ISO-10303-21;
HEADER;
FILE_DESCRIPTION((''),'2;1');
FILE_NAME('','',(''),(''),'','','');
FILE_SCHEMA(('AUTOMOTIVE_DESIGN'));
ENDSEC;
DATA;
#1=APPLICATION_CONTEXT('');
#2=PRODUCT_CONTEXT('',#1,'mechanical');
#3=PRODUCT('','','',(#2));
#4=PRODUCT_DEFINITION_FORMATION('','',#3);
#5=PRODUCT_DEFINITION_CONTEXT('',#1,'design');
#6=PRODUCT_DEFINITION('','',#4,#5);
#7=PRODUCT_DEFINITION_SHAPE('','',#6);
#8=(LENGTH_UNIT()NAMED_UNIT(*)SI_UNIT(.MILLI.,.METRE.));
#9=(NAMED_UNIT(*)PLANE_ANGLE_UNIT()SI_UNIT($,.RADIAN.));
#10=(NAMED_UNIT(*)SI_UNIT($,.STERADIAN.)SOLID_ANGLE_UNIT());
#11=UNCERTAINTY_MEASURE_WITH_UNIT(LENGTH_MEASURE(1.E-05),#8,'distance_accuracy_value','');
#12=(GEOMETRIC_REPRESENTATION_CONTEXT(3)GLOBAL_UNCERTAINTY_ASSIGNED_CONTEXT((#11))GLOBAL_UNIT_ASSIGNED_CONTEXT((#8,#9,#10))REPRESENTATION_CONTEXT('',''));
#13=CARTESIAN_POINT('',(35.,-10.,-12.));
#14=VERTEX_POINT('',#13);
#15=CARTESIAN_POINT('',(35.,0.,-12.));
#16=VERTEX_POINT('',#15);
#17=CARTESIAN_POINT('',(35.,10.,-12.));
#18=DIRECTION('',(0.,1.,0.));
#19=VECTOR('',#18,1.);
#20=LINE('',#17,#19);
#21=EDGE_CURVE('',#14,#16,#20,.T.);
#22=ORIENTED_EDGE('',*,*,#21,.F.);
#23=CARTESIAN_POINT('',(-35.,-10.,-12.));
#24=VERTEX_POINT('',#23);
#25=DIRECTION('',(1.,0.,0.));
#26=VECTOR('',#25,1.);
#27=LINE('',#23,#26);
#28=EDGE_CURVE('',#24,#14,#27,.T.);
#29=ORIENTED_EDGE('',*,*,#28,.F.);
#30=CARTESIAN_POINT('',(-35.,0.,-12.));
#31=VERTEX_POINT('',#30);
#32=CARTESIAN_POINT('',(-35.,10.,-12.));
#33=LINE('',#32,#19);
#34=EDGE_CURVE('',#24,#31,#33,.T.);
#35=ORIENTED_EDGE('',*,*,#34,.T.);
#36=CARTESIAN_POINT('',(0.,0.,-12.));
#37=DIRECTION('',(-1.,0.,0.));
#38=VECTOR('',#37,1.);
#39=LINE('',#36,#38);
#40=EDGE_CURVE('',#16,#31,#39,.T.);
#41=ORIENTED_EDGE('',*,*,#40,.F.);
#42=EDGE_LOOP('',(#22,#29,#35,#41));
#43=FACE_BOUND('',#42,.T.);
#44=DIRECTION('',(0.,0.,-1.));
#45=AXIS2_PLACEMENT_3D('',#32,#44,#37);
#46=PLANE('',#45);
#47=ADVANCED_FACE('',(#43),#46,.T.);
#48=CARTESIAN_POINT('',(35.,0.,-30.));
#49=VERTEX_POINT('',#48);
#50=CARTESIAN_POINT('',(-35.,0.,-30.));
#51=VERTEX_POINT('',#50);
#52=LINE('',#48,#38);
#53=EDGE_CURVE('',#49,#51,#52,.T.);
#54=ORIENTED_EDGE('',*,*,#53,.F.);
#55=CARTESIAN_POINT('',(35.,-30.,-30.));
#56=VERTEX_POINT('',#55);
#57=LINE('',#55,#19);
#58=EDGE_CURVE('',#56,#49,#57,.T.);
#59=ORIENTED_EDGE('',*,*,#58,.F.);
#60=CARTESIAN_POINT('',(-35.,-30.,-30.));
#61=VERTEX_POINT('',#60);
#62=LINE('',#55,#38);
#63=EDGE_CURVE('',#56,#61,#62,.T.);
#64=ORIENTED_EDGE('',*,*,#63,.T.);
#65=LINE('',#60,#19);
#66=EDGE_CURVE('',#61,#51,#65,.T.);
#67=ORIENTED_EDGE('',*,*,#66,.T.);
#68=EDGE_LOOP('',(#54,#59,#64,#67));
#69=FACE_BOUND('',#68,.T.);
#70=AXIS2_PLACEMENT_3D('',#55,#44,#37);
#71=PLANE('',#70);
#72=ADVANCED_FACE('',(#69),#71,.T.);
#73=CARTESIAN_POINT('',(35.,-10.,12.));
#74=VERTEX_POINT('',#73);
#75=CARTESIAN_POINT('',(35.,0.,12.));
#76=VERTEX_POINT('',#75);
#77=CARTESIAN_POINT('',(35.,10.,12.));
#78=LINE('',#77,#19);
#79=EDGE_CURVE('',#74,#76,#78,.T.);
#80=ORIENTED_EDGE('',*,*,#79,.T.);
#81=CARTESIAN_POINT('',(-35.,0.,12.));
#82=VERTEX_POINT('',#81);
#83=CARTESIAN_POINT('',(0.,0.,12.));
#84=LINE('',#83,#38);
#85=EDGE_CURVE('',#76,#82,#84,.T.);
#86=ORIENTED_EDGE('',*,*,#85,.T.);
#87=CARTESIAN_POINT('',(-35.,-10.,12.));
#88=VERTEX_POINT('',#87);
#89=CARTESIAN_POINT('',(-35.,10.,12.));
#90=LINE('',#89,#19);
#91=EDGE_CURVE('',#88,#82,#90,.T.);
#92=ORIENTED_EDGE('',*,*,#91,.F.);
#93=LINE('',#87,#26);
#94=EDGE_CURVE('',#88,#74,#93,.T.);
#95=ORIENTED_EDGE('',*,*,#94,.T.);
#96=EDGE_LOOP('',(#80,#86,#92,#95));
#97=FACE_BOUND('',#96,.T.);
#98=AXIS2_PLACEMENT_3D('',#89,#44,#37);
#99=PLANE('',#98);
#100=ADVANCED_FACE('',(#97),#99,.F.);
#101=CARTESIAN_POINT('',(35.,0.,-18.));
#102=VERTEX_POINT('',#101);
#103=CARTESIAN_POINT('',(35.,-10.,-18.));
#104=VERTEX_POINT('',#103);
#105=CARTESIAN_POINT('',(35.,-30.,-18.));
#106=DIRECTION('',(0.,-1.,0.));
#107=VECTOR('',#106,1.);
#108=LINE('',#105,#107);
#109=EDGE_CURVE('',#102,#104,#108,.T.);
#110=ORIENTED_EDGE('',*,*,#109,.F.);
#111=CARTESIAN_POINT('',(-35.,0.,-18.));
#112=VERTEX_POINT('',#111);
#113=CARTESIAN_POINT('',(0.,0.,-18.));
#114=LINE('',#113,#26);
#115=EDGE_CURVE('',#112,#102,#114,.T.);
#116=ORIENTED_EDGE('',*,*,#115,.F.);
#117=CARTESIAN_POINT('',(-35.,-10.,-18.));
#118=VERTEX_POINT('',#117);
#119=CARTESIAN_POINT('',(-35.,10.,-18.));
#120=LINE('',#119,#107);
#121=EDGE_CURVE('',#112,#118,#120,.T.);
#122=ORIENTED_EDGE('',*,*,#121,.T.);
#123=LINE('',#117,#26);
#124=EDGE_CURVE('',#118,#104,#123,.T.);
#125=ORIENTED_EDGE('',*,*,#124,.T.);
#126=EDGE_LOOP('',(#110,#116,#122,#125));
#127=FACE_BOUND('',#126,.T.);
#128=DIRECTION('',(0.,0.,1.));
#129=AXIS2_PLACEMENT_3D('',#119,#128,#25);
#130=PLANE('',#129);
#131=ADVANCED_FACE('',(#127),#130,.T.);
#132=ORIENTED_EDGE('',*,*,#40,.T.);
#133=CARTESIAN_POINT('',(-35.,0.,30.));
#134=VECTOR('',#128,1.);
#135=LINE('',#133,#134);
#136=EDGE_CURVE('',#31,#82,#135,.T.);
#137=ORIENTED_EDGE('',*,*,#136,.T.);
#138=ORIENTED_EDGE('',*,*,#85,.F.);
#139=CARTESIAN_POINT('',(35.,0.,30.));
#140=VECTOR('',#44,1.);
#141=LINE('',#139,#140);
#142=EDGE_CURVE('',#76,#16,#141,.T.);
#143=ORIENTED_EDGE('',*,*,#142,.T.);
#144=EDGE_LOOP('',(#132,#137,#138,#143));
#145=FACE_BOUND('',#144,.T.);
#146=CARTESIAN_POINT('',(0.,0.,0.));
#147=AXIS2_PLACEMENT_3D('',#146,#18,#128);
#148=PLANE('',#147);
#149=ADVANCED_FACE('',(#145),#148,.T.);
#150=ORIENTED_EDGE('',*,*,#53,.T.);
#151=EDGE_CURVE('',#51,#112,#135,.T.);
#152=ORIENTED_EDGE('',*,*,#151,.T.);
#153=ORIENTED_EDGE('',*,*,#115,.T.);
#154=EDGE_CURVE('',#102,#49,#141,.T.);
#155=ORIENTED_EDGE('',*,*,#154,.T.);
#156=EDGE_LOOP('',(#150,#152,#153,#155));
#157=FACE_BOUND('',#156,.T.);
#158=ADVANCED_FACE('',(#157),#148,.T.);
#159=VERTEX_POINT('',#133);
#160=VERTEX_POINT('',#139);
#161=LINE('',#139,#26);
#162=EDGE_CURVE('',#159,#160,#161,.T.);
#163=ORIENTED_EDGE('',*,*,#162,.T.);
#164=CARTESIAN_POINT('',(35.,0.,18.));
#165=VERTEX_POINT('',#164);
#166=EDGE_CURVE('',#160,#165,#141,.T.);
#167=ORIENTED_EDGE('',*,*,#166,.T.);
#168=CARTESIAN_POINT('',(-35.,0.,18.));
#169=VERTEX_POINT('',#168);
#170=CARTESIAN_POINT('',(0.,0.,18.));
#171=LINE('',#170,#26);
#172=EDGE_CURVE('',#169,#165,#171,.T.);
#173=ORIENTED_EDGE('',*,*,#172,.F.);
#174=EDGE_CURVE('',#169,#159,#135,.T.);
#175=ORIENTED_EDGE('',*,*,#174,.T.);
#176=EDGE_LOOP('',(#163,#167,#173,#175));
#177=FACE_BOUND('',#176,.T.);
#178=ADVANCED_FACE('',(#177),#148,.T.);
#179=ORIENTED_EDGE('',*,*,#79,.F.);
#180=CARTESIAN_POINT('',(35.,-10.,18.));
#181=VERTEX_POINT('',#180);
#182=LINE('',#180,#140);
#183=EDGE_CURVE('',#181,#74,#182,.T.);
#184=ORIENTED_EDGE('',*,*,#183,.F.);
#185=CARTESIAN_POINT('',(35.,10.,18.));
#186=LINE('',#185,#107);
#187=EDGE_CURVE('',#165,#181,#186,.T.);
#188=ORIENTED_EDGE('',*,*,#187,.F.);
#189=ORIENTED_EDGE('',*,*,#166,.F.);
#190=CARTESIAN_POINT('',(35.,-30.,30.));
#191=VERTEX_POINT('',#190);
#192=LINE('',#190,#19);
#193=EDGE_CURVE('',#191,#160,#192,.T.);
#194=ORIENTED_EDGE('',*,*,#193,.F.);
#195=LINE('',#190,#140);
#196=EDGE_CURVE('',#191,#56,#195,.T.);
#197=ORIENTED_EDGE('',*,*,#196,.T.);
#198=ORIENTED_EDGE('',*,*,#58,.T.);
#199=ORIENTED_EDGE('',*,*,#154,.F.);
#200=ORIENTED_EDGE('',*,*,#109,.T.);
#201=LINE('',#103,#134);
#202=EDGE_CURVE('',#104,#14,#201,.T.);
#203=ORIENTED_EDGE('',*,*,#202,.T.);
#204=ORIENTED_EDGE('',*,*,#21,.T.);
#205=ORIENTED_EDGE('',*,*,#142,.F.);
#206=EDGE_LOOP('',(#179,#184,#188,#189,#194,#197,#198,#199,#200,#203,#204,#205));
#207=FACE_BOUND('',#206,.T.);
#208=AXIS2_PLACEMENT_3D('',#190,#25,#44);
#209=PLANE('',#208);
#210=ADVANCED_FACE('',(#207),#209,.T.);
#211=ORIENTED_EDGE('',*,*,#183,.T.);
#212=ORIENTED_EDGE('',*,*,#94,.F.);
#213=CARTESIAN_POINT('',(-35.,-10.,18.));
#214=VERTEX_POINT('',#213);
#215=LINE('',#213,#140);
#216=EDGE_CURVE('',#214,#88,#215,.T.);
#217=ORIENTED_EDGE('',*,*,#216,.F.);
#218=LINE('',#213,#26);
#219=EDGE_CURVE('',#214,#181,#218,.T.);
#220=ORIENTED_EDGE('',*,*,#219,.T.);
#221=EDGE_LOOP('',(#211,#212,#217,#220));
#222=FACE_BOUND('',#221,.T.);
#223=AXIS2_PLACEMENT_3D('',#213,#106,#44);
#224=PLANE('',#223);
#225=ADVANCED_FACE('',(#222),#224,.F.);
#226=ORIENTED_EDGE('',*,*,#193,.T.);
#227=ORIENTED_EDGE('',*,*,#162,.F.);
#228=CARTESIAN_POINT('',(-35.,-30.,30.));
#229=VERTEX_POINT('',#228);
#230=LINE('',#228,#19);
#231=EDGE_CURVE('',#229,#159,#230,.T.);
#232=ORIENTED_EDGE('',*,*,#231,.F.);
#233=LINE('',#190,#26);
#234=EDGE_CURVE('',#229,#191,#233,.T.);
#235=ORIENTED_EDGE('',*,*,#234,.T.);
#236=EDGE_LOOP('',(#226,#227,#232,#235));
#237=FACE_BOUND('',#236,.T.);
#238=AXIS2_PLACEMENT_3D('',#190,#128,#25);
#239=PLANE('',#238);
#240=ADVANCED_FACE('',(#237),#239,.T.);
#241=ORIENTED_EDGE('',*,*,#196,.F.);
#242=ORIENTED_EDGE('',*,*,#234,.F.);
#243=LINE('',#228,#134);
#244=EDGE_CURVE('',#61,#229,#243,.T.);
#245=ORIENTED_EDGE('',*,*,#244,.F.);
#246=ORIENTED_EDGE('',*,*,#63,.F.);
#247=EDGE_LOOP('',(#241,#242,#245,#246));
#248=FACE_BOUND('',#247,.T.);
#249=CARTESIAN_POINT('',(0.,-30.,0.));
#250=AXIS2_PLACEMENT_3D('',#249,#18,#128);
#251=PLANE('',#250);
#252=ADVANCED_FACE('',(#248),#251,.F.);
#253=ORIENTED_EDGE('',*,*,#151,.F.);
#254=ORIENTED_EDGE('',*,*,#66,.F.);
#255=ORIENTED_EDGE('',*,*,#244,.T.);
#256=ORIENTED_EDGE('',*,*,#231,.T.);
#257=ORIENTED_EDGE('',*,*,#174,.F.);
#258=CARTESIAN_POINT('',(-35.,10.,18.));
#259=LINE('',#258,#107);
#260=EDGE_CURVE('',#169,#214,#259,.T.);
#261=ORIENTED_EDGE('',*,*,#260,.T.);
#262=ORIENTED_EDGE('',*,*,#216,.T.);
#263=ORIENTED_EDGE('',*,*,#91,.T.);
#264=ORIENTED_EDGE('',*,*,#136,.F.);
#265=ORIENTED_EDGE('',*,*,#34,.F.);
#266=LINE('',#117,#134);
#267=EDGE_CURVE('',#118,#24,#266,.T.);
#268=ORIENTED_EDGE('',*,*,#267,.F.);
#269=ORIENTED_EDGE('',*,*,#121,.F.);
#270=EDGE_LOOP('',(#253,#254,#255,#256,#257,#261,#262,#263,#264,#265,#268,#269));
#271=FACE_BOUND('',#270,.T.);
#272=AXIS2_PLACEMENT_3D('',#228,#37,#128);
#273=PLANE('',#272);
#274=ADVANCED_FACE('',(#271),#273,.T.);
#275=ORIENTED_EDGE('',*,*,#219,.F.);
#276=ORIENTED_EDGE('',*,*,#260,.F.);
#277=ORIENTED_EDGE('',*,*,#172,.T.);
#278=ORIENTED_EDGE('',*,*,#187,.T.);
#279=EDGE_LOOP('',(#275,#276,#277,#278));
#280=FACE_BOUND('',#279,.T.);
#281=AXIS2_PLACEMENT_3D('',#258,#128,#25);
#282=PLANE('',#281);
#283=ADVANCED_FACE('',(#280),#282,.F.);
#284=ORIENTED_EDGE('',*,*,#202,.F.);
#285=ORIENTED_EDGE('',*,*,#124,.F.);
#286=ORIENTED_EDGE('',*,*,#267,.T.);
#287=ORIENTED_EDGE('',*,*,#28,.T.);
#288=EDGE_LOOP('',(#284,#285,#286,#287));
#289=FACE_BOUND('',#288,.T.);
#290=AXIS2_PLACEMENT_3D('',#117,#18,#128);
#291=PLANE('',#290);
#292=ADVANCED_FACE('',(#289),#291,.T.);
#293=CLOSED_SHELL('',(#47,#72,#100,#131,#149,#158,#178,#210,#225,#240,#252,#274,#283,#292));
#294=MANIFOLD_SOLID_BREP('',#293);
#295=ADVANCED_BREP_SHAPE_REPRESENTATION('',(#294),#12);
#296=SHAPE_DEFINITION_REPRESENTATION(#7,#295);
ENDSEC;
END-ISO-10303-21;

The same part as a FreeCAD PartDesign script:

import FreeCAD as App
import Part
import Sketcher

V = App.Vector
Q = App.Units.Quantity


def add_polygon(sketch, points):
    """Adds a closed chain of lines whose ends are joined by coincident constraints."""
    first, n = sketch.GeometryCount, len(points)
    for a, b in zip(points, points[1:] + points[:1]):
        sketch.addGeometry(Part.LineSegment(App.Vector(*a, 0), App.Vector(*b, 0)), False)
    for i in range(n):
        sketch.addConstraint(Sketcher.Constraint("Coincident", first + i, 2, first + (i + 1) % n, 1))

doc = App.newDocument("Part")
body = doc.addObject("PartDesign::Body", "Body")

# Sketch on XZ plane
sketch1 = doc.addObject("Sketcher::SketchObject", "Sketch")
body.addObject(sketch1)
sketch1.AttachmentSupport = (doc.XZ_Plane, [""])
sketch1.MapMode = "FlatFace"
add_polygon(sketch1, [(-35, -30), (-35, 30), (35, 30), (35, -30)])  # lines 0-3
sketch1.addConstraint(Sketcher.Constraint("Vertical", 0))
sketch1.addConstraint(Sketcher.Constraint("Horizontal", 1))
sketch1.addConstraint(Sketcher.Constraint("Vertical", 2))
sketch1.addConstraint(Sketcher.Constraint("Horizontal", 3))
sketch1.addConstraint(Sketcher.Constraint("Symmetric", 0, 2, 2, 2, -1, 1))
sketch1.addConstraint(Sketcher.Constraint("DistanceX", 1, 1, 1, 2, Q("70 mm")))
sketch1.addConstraint(Sketcher.Constraint("DistanceY", 0, 1, 0, 2, Q("60 mm")))
pad1 = doc.addObject("PartDesign::Pad", "Pad")
body.addObject(pad1)
pad1.Profile = sketch1
pad1.Length = 30

# Sketch on YZ plane
sketch2 = doc.addObject("Sketcher::SketchObject", "Sketch001")
body.addObject(sketch2)
sketch2.AttachmentSupport = (doc.YZ_Plane, [""])
sketch2.MapMode = "FlatFace"
sketch2.AttachmentOffset = App.Placement(V(0, 0, 35), App.Rotation())
add_polygon(sketch2, [(10, 18), (-10, 18), (-10, 12), (10, 12)])  # lines 0-3
sketch2.addConstraint(Sketcher.Constraint("Horizontal", 0))
sketch2.addConstraint(Sketcher.Constraint("Vertical", 1))
sketch2.addConstraint(Sketcher.Constraint("Horizontal", 2))
sketch2.addConstraint(Sketcher.Constraint("Vertical", 3))
sketch2.addConstraint(Sketcher.Constraint("DistanceX", 0, 2, 0, 1, Q("20 mm")))
sketch2.addConstraint(Sketcher.Constraint("DistanceY", 1, 2, 1, 1, Q("6 mm")))
sketch2.addConstraint(Sketcher.Constraint("DistanceX", 0, 2, -1, 1, Q("10 mm")))
sketch2.addConstraint(Sketcher.Constraint("DistanceY", -1, 1, 0, 2, Q("18 mm")))
pocket1 = doc.addObject("PartDesign::Pocket", "Pocket")
body.addObject(pocket1)
pocket1.Profile = sketch2
pocket1.Type = "ThroughAll"
doc.recompute()

mirrored = doc.addObject("PartDesign::Mirrored", "Mirrored")
body.addObject(mirrored)
mirrored.Originals = [pocket1]
mirrored.MirrorPlane = (doc.XY_Plane, [""])
body.Tip = mirrored

doc.recompute()
